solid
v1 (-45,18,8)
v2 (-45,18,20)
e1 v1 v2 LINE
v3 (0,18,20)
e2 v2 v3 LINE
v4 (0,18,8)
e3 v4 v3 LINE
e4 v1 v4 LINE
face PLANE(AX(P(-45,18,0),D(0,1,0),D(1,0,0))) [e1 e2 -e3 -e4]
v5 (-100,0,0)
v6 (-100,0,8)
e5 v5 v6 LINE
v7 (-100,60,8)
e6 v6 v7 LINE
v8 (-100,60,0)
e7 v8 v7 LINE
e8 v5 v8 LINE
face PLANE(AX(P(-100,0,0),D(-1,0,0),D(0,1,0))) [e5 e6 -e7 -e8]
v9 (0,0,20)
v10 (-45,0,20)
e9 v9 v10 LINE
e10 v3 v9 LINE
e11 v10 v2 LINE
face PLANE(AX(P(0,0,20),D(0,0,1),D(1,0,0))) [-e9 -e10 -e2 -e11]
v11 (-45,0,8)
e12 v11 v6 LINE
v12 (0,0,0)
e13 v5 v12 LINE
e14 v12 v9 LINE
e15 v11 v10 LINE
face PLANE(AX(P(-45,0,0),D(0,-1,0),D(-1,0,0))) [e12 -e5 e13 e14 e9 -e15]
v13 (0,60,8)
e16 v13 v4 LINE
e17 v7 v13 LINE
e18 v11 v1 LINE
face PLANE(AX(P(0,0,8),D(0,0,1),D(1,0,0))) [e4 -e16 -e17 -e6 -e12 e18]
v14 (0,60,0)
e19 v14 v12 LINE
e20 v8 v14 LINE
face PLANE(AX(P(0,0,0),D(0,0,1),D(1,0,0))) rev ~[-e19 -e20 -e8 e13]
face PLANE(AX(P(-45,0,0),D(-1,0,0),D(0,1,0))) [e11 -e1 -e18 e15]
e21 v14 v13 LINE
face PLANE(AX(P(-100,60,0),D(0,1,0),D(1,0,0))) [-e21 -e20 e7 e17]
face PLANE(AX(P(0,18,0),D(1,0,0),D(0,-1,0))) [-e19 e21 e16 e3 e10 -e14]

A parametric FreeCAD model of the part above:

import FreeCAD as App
import Part
import Sketcher
Q = App.Units.Quantity

doc = App.newDocument("Part")
body = doc.addObject("PartDesign::Body", "Body")

# Sketch on XY plane
sketch1 = doc.addObject("Sketcher::SketchObject", "Sketch")
body.addObject(sketch1)
sketch1.AttachmentSupport = (doc.XY_Plane, [""])
sketch1.MapMode = "FlatFace"
sketch1.addGeometry(Part.LineSegment(App.Vector(-100, 0, 0), App.Vector(-45, 0, 0)), False)
sketch1.addGeometry(Part.LineSegment(App.Vector(-45, 0, 0), App.Vector(-45, 18, 0)), False)
sketch1.addGeometry(Part.LineSegment(App.Vector(-45, 18, 0), App.Vector(0, 18, 0)), False)
sketch1.addGeometry(Part.LineSegment(App.Vector(0, 18, 0), App.Vector(0, 60, 0)), False)
sketch1.addGeometry(Part.LineSegment(App.Vector(0, 60, 0), App.Vector(-100, 60, 0)), False)
sketch1.addGeometry(Part.LineSegment(App.Vector(-100, 60, 0), App.Vector(-100, 0, 0)), False)
sketch1.addConstraint(Sketcher.Constraint("Coincident", 0, 2, 1, 1))
sketch1.addConstraint(Sketcher.Constraint("Coincident", 1, 2, 2, 1))
sketch1.addConstraint(Sketcher.Constraint("Coincident", 2, 2, 3, 1))
sketch1.addConstraint(Sketcher.Constraint("Coincident", 3, 2, 4, 1))
sketch1.addConstraint(Sketcher.Constraint("Coincident", 4, 2, 5, 1))
sketch1.addConstraint(Sketcher.Constraint("Coincident", 5, 2, 0, 1))
sketch1.addConstraint(Sketcher.Constraint("Horizontal", 0))
sketch1.addConstraint(Sketcher.Constraint("Vertical", 1))
sketch1.addConstraint(Sketcher.Constraint("Horizontal", 2))
sketch1.addConstraint(Sketcher.Constraint("Vertical", 3))
sketch1.addConstraint(Sketcher.Constraint("Horizontal", 4))
sketch1.addConstraint(Sketcher.Constraint("Vertical", 5))
sketch1.addConstraint(Sketcher.Constraint("PointOnObject", 0, 2, -1))
sketch1.addConstraint(Sketcher.Constraint("PointOnObject", 2, 2, -2))
sketch1.addConstraint(Sketcher.Constraint("DistanceX", 2, 1, 2, 2, Q("45 mm")))
sketch1.addConstraint(Sketcher.Constraint("DistanceX", 4, 2, 4, 1, Q("100 mm")))
sketch1.addConstraint(Sketcher.Constraint("DistanceY", 1, 1, 1, 2, Q("18 mm")))
sketch1.addConstraint(Sketcher.Constraint("DistanceY", 5, 2, 5, 1, Q("60 mm")))
pad1 = doc.addObject("PartDesign::Pad", "Pad")
body.addObject(pad1)
pad1.Profile = sketch1
pad1.Length = 8

# Sketch on XY plane
sketch2 = doc.addObject("Sketcher::SketchObject", "Sketch001")
body.addObject(sketch2)
sketch2.AttachmentSupport = (doc.XY_Plane, [""])
sketch2.MapMode = "FlatFace"
sketch2.addGeometry(Part.LineSegment(App.Vector(-45, 0, 0), App.Vector(0, 0, 0)), False)
sketch2.addGeometry(Part.LineSegment(App.Vector(0, 0, 0), App.Vector(0, 18, 0)), False)
sketch2.addGeometry(Part.LineSegment(App.Vector(0, 18, 0), App.Vector(-45, 18, 0)), False)
sketch2.addGeometry(Part.LineSegment(App.Vector(-45, 18, 0), App.Vector(-45, 0, 0)), False)
sketch2.addConstraint(Sketcher.Constraint("Coincident", 0, 2, 1, 1))
sketch2.addConstraint(Sketcher.Constraint("Coincident", 1, 2, 2, 1))
sketch2.addConstraint(Sketcher.Constraint("Coincident", 2, 2, 3, 1))
sketch2.addConstraint(Sketcher.Constraint("Coincident", 3, 2, 0, 1))
sketch2.addConstraint(Sketcher.Constraint("Horizontal", 0))
sketch2.addConstraint(Sketcher.Constraint("Vertical", 1))
sketch2.addConstraint(Sketcher.Constraint("Horizontal", 2))
sketch2.addConstraint(Sketcher.Constraint("Vertical", 3))
sketch2.addConstraint(Sketcher.Constraint("Coincident", 0, 2, -1, 1))
sketch2.addConstraint(Sketcher.Constraint("DistanceX", 0, 1, 0, 2, Q("45 mm")))
sketch2.addConstraint(Sketcher.Constraint("DistanceY", 1, 1, 1, 2, Q("18 mm")))
pad2 = doc.addObject("PartDesign::Pad", "Pad001")
body.addObject(pad2)
pad2.Profile = sketch2
pad2.Length = 20

doc.recompute()
